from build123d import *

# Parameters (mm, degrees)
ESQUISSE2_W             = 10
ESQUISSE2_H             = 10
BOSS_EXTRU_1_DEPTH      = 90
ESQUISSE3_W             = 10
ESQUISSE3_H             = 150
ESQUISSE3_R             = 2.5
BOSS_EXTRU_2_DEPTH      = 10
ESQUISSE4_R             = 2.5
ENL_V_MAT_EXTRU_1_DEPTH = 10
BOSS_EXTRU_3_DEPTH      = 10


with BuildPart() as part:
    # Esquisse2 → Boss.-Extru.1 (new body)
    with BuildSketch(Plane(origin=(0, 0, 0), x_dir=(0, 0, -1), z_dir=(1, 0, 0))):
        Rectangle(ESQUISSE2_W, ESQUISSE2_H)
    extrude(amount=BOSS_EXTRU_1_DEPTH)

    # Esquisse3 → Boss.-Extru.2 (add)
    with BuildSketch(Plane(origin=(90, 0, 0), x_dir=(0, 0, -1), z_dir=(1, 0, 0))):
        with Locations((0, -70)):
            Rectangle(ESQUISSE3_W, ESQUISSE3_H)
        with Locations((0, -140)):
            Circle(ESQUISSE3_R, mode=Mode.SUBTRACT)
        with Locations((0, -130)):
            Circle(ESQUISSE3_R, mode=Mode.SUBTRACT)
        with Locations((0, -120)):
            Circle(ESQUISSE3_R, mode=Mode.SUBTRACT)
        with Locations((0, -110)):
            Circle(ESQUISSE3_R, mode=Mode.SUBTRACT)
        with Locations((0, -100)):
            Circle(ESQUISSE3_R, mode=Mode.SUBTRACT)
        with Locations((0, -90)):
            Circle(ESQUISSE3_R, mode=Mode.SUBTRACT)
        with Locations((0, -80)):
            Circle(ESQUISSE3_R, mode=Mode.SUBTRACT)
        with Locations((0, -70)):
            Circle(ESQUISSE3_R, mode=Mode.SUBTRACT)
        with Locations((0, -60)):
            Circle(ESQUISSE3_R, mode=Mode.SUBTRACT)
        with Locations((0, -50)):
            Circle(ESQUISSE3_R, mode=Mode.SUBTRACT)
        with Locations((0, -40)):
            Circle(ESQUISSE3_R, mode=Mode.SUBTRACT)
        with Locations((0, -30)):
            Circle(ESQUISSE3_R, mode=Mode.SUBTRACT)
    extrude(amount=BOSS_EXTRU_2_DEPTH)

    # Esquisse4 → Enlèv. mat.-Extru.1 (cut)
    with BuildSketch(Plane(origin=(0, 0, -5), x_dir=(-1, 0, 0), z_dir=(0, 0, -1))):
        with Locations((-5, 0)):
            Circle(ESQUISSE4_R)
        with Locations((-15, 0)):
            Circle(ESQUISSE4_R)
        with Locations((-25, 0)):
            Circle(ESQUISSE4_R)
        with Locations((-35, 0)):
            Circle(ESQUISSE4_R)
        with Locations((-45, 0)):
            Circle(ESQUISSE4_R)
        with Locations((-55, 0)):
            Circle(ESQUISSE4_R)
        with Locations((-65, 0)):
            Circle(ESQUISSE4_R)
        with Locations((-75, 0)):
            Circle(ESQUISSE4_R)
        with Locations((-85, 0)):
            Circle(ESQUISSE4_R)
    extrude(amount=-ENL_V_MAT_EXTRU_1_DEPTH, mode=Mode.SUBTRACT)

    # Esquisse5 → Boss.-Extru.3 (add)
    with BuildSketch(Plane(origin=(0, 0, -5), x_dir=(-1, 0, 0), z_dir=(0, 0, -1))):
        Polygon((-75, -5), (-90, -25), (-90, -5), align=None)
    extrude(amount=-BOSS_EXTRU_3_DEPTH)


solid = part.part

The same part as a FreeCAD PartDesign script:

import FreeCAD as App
import Part
import Sketcher
from FreeCAD import Vector
Q = App.Units.Quantity

doc = App.newDocument("Part")
body = doc.addObject("PartDesign::Body", "Body")

# Sketch on YZ plane
sketch1 = doc.addObject("Sketcher::SketchObject", "Sketch")
body.addObject(sketch1)
sketch1.AttachmentSupport = (doc.YZ_Plane, [""])
sketch1.MapMode = "FlatFace"
sketch1.addGeometry([
    Part.LineSegment(Vector(5, 5, 0), Vector(-5, 5, 0)),
    Part.LineSegment(Vector(-5, 5, 0), Vector(-5, -5, 0)),
    Part.LineSegment(Vector(-5, -5, 0), Vector(5, -5, 0)),
    Part.LineSegment(Vector(5, -5, 0), Vector(5, 5, 0)),
], False)
sketch1.addConstraint([
    Sketcher.Constraint("Coincident", 0, 2, 1, 1),
    Sketcher.Constraint("Coincident", 1, 2, 2, 1),
    Sketcher.Constraint("Coincident", 2, 2, 3, 1),
    Sketcher.Constraint("Coincident", 3, 2, 0, 1),
    Sketcher.Constraint("Horizontal", 0),
    Sketcher.Constraint("Vertical", 1),
    Sketcher.Constraint("Horizontal", 2),
    Sketcher.Constraint("Vertical", 3),
    Sketcher.Constraint("Symmetric", 0, 2, 2, 2, -1, 1),
    Sketcher.Constraint("Equal", 2, 1),
    Sketcher.Constraint("DistanceX", 0, 2, 0, 1, Q("10 mm")),
])
pad1 = doc.addObject("PartDesign::Pad", "Pad")
body.addObject(pad1)
pad1.Profile = sketch1
pad1.Length = 90

# Sketch on YZ plane
sketch2 = doc.addObject("Sketcher::SketchObject", "Sketch001")
body.addObject(sketch2)
sketch2.AttachmentSupport = (doc.YZ_Plane, [""])
sketch2.MapMode = "FlatFace"
sketch2.AttachmentOffset = App.Placement(Vector(0, 0, 90), App.Rotation())
sketch2.addGeometry([
    Part.LineSegment(Vector(5, 5, 0), Vector(-145, 5, 0)),  # 0
    Part.LineSegment(Vector(-145, 5, 0), Vector(-145, -5, 0)),  # 1
    Part.LineSegment(Vector(-145, -5, 0), Vector(5, -5, 0)),  # 2
    Part.LineSegment(Vector(5, -5, 0), Vector(5, 5, 0)),  # 3
    Part.Circle(Vector(-140, 0, 0), Vector(0, 0, 1), 2.5),  # 4
    Part.Circle(Vector(-130, 0, 0), Vector(0, 0, 1), 2.5),  # 5
    Part.Circle(Vector(-120, 0, 0), Vector(0, 0, 1), 2.5),  # 6
    Part.Circle(Vector(-110, 0, 0), Vector(0, 0, 1), 2.5),  # 7
    Part.Circle(Vector(-100, 0, 0), Vector(0, 0, 1), 2.5),  # 8
    Part.Circle(Vector(-90, 0, 0), Vector(0, 0, 1), 2.5),  # 9
    Part.Circle(Vector(-80, 0, 0), Vector(0, 0, 1), 2.5),  # 10
    Part.Circle(Vector(-70, 0, 0), Vector(0, 0, 1), 2.5),  # 11
    Part.Circle(Vector(-60, 0, 0), Vector(0, 0, 1), 2.5),  # 12
    Part.Circle(Vector(-50, 0, 0), Vector(0, 0, 1), 2.5),  # 13
    Part.Circle(Vector(-40, 0, 0), Vector(0, 0, 1), 2.5),  # 14
    Part.Circle(Vector(-30, 0, 0), Vector(0, 0, 1), 2.5),  # 15
], False)
sketch2.addConstraint([
    Sketcher.Constraint("Coincident", 0, 2, 1, 1),
    Sketcher.Constraint("Coincident", 1, 2, 2, 1),
    Sketcher.Constraint("Coincident", 2, 2, 3, 1),
    Sketcher.Constraint("Coincident", 3, 2, 0, 1),
    Sketcher.Constraint("Horizontal", 0),
    Sketcher.Constraint("Vertical", 1),
    Sketcher.Constraint("Horizontal", 2),
    Sketcher.Constraint("Vertical", 3),
    Sketcher.Constraint("Equal", 4, 5),
    Sketcher.Constraint("Equal", 5, 6),
    Sketcher.Constraint("Equal", 6, 7),
    Sketcher.Constraint("Equal", 7, 8),
    Sketcher.Constraint("Equal", 8, 9),
    Sketcher.Constraint("Equal", 9, 10),
    Sketcher.Constraint("Equal", 10, 11),
    Sketcher.Constraint("Equal", 11, 12),
    Sketcher.Constraint("Equal", 12, 13),
    Sketcher.Constraint("Equal", 13, 14),
    Sketcher.Constraint("Equal", 14, 15),
    Sketcher.Constraint("PointOnObject", 4, 3, -1),
    Sketcher.Constraint("PointOnObject", 5, 3, -1),
    Sketcher.Constraint("PointOnObject", 6, 3, -1),
    Sketcher.Constraint("PointOnObject", 7, 3, -1),
    Sketcher.Constraint("PointOnObject", 8, 3, -1),
    Sketcher.Constraint("PointOnObject", 9, 3, -1),
    Sketcher.Constraint("PointOnObject", 10, 3, -1),
    Sketcher.Constraint("PointOnObject", 11, 3, -1),
    Sketcher.Constraint("PointOnObject", 12, 3, -1),
    Sketcher.Constraint("PointOnObject", 13, 3, -1),
    Sketcher.Constraint("PointOnObject", 14, 3, -1),
    Sketcher.Constraint("PointOnObject", 15, 3, -1),
    Sketcher.Constraint("Diameter", 4, Q("5 mm")),
    Sketcher.Constraint("DistanceX", 0, 2, 0, 1, Q("150 mm")),
    Sketcher.Constraint("DistanceY", 1, 2, 1, 1, Q("10 mm")),
    Sketcher.Constraint("DistanceX", 4, 3, -1, 1, Q("140 mm")),
    Sketcher.Constraint("DistanceX", 5, 3, -1, 1, Q("130 mm")),
    Sketcher.Constraint("DistanceX", 6, 3, -1, 1, Q("120 mm")),
    Sketcher.Constraint("DistanceX", 7, 3, -1, 1, Q("110 mm")),
    Sketcher.Constraint("DistanceX", 8, 3, -1, 1, Q("100 mm")),
    Sketcher.Constraint("DistanceX", 9, 3, -1, 1, Q("90 mm")),
    Sketcher.Constraint("DistanceX", 10, 3, -1, 1, Q("80 mm")),
    Sketcher.Constraint("DistanceX", 11, 3, -1, 1, Q("70 mm")),
    Sketcher.Constraint("DistanceX", 12, 3, -1, 1, Q("60 mm")),
    Sketcher.Constraint("DistanceX", 13, 3, -1, 1, Q("50 mm")),
    Sketcher.Constraint("DistanceX", 14, 3, -1, 1, Q("40 mm")),
    Sketcher.Constraint("DistanceX", 15, 3, -1, 1, Q("30 mm")),
    Sketcher.Constraint("DistanceX", 0, 2, -1, 1, Q("145 mm")),
    Sketcher.Constraint("DistanceY", -1, 1, 0, 2, Q("5 mm")),
])
pad2 = doc.addObject("PartDesign::Pad", "Pad001")
body.addObject(pad2)
pad2.Profile = sketch2
pad2.Length = 10

# Sketch on XY plane
sketch3 = doc.addObject("Sketcher::SketchObject", "Sketch002")
body.addObject(sketch3)
sketch3.AttachmentSupport = (doc.XY_Plane, [""])
sketch3.MapMode = "FlatFace"
sketch3.AttachmentOffset = App.Placement(Vector(0, 0, -5), App.Rotation())
sketch3.addGeometry([
    Part.Circle(Vector(5, 0, 0), Vector(0, 0, 1), 2.5),  # 0
    Part.Circle(Vector(15, 0, 0), Vector(0, 0, 1), 2.5),  # 1
    Part.Circle(Vector(25, 0, 0), Vector(0, 0, 1), 2.5),  # 2
    Part.Circle(Vector(35, 0, 0), Vector(0, 0, 1), 2.5),  # 3
    Part.Circle(Vector(45, 0, 0), Vector(0, 0, 1), 2.5),  # 4
    Part.Circle(Vector(55, 0, 0), Vector(0, 0, 1), 2.5),  # 5
    Part.Circle(Vector(65, 0, 0), Vector(0, 0, 1), 2.5),  # 6
    Part.Circle(Vector(75, 0, 0), Vector(0, 0, 1), 2.5),  # 7
    Part.Circle(Vector(85, 0, 0), Vector(0, 0, 1), 2.5),  # 8
], False)
sketch3.addConstraint([
    Sketcher.Constraint("Equal", 0, 1),
    Sketcher.Constraint("Equal", 1, 2),
    Sketcher.Constraint("Equal", 2, 3),
    Sketcher.Constraint("Equal", 3, 4),
    Sketcher.Constraint("Equal", 4, 5),
    Sketcher.Constraint("Equal", 5, 6),
    Sketcher.Constraint("Equal", 6, 7),
    Sketcher.Constraint("Equal", 7, 8),
    Sketcher.Constraint("PointOnObject", 0, 3, -1),
    Sketcher.Constraint("PointOnObject", 1, 3, -1),
    Sketcher.Constraint("PointOnObject", 2, 3, -1),
    Sketcher.Constraint("PointOnObject", 3, 3, -1),
    Sketcher.Constraint("PointOnObject", 4, 3, -1),
    Sketcher.Constraint("PointOnObject", 5, 3, -1),
    Sketcher.Constraint("PointOnObject", 6, 3, -1),
    Sketcher.Constraint("PointOnObject", 7, 3, -1),
    Sketcher.Constraint("PointOnObject", 8, 3, -1),
    Sketcher.Constraint("Diameter", 0, Q("5 mm")),
    Sketcher.Constraint("DistanceX", -1, 1, 0, 3, Q("5 mm")),
    Sketcher.Constraint("DistanceX", -1, 1, 1, 3, Q("15 mm")),
    Sketcher.Constraint("DistanceX", -1, 1, 2, 3, Q("25 mm")),
    Sketcher.Constraint("DistanceX", -1, 1, 3, 3, Q("35 mm")),
    Sketcher.Constraint("DistanceX", -1, 1, 4, 3, Q("45 mm")),
    Sketcher.Constraint("DistanceX", -1, 1, 5, 3, Q("55 mm")),
    Sketcher.Constraint("DistanceX", -1, 1, 6, 3, Q("65 mm")),
    Sketcher.Constraint("DistanceX", -1, 1, 7, 3, Q("75 mm")),
    Sketcher.Constraint("DistanceX", -1, 1, 8, 3, Q("85 mm")),
])
pocket1 = doc.addObject("PartDesign::Pocket", "Pocket")
body.addObject(pocket1)
pocket1.Profile = sketch3
pocket1.Length = 10
pocket1.Reversed = True

# Sketch on XY plane
sketch4 = doc.addObject("Sketcher::SketchObject", "Sketch003")
body.addObject(sketch4)
sketch4.AttachmentSupport = (doc.XY_Plane, [""])
sketch4.MapMode = "FlatFace"
sketch4.AttachmentOffset = App.Placement(Vector(0, 0, -5), App.Rotation())
sketch4.addGeometry([
    Part.LineSegment(Vector(90, -25, 0), Vector(75, -5, 0)),
    Part.LineSegment(Vector(75, -5, 0), Vector(90, -5, 0)),
    Part.LineSegment(Vector(90, -5, 0), Vector(90, -25, 0)),
], False)
sketch4.addConstraint([
    Sketcher.Constraint("Coincident", 0, 2, 1, 1),
    Sketcher.Constraint("Coincident", 1, 2, 2, 1),
    Sketcher.Constraint("Coincident", 2, 2, 0, 1),
    Sketcher.Constraint("Horizontal", 1),
    Sketcher.Constraint("Vertical", 2),
    Sketcher.Constraint("DistanceX", 1, 1, 1, 2, Q("15 mm")),
    Sketcher.Constraint("DistanceY", 2, 2, 2, 1, Q("20 mm")),
    Sketcher.Constraint("DistanceX", -1, 1, 0, 2, Q("75 mm")),
    Sketcher.Constraint("DistanceY", 0, 2, -1, 1, Q("5 mm")),
])
pad3 = doc.addObject("PartDesign::Pad", "Pad002")
body.addObject(pad3)
pad3.Profile = sketch4
pad3.Length = 10

doc.recompute()
